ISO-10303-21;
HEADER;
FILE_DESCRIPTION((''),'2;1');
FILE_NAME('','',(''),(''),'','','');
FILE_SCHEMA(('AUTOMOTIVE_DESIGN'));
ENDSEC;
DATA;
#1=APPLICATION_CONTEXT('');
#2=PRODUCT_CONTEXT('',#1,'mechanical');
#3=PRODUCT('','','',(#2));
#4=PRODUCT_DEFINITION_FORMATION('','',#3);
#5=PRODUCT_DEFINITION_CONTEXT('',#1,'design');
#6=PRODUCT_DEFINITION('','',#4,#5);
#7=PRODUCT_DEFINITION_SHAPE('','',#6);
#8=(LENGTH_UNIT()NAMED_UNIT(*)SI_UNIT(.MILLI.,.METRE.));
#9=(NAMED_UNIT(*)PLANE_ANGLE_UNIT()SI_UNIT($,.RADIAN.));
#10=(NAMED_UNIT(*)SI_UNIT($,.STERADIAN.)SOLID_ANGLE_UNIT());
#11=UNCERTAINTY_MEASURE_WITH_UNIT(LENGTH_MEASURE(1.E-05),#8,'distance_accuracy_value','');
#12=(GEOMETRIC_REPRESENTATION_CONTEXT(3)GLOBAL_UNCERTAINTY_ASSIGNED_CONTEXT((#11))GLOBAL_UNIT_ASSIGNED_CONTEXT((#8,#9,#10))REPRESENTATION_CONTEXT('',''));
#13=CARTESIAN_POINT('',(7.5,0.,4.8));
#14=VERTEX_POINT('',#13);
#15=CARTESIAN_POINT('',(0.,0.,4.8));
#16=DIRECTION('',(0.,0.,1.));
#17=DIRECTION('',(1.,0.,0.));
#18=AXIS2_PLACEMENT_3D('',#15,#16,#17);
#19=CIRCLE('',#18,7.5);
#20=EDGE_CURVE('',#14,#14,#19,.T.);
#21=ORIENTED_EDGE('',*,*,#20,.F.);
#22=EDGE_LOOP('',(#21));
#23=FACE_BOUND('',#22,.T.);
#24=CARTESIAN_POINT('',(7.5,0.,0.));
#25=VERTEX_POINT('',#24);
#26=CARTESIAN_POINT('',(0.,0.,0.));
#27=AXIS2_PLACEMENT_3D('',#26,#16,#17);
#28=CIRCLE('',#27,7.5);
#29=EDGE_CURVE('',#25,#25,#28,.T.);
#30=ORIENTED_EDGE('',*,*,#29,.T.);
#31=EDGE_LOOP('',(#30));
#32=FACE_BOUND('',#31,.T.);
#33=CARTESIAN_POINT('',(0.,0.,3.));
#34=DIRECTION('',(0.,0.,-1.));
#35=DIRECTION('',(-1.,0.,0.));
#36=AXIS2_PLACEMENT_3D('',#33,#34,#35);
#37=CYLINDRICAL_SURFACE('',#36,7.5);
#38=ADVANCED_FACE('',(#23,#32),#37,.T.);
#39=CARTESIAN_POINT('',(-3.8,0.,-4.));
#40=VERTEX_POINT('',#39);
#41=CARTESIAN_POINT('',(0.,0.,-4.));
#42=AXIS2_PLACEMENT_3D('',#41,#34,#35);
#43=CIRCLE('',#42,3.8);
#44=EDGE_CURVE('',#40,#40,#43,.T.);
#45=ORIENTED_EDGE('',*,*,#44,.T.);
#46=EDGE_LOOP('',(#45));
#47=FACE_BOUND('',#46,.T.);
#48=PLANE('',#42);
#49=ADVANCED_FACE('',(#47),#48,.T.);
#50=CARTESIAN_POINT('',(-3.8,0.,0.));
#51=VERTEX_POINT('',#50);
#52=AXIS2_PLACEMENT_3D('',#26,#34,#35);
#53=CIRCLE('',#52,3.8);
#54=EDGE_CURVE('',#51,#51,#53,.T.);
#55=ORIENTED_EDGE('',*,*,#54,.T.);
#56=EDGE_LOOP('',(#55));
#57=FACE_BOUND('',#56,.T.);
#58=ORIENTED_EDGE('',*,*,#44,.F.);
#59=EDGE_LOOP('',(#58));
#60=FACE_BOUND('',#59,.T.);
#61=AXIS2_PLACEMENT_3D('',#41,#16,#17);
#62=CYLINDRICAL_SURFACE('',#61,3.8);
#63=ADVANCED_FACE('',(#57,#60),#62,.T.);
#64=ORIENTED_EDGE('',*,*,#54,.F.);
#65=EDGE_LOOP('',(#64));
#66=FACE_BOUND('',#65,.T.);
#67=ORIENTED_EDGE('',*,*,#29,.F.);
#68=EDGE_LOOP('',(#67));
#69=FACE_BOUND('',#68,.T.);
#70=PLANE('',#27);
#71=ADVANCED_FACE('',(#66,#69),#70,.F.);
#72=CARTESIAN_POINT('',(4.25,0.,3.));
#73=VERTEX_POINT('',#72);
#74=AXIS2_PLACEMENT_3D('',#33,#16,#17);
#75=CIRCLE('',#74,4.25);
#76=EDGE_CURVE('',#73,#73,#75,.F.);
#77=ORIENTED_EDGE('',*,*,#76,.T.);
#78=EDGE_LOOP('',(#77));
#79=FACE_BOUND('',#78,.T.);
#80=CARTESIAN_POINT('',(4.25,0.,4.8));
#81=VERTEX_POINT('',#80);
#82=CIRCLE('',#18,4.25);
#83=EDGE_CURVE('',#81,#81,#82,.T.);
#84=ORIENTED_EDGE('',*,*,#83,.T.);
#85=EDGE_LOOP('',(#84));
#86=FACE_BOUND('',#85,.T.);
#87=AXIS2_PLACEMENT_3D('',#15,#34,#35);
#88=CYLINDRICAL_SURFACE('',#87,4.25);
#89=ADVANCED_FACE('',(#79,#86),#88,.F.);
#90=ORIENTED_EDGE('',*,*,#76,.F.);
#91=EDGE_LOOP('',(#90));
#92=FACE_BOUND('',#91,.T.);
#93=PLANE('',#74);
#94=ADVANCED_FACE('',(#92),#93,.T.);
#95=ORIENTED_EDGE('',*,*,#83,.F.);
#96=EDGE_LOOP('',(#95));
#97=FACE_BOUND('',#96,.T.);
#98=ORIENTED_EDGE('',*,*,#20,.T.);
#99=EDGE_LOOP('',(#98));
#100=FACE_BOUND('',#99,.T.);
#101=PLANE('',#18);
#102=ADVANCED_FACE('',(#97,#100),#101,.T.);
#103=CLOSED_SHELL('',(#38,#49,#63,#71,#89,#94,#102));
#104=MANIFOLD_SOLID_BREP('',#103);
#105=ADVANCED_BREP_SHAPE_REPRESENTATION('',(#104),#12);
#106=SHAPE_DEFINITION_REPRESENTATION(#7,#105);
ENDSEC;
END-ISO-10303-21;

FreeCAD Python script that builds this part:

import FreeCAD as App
import Part
import Sketcher

V = App.Vector
Q = App.Units.Quantity

doc = App.newDocument("Part")
body = doc.addObject("PartDesign::Body", "Body")

# Sketch on XY plane
sketch1 = body.newObject("Sketcher::SketchObject", "Sketch")
sketch1.AttachmentSupport = (doc.getObject("XY_Plane"), [""])
sketch1.MapMode = "FlatFace"
sketch1.addGeometry(Part.Circle(V(0, 0, 0), V(0, 0, 1), 8), False)
sketch1.addConstraint([
    Sketcher.Constraint("Coincident", 0, 3, -1, 1),
    Sketcher.Constraint("Diameter", 0, Q("15 mm")),
])
pad1 = body.newObject("PartDesign::Pad", "Pad")
pad1.Profile = sketch1
pad1.Length = 3

# Sketch on XY plane
sketch2 = body.newObject("Sketcher::SketchObject", "Sketch001")
sketch2.AttachmentSupport = (doc.getObject("XY_Plane"), [""])
sketch2.MapMode = "FlatFace"
sketch2.addGeometry(Part.Circle(V(0, 0, 0), V(0, 0, 1), 3.8), False)
sketch2.addConstraint([
    Sketcher.Constraint("Coincident", 0, 3, -1, 1),
    Sketcher.Constraint("Diameter", 0, Q("7.6 mm")),
])
pad2 = body.newObject("PartDesign::Pad", "Pad001")
pad2.Profile = sketch2
pad2.Length = 4
pad2.Reversed = True

# Sketch on XY plane
sketch3 = body.newObject("Sketcher::SketchObject", "Sketch002")
sketch3.AttachmentSupport = (doc.getObject("XY_Plane"), [""])
sketch3.MapMode = "FlatFace"
sketch3.AttachmentOffset = App.Placement(V(0, 0, 3), App.Rotation())
sketch3.addGeometry([
    Part.Circle(V(0, 0, 0), V(0, 0, 1), 7.5),
    Part.Circle(V(0, 0, 0), V(0, 0, 1), 4.2),
], False)
sketch3.addConstraint([
    Sketcher.Constraint("Coincident", 0, 3, -1, 1),
    Sketcher.Constraint("Coincident", 1, 3, -1, 1),
    Sketcher.Constraint("Diameter", 0, Q("15 mm")),
    Sketcher.Constraint("Diameter", 1, Q("8.5 mm")),
])
pad3 = body.newObject("PartDesign::Pad", "Pad002")
pad3.Profile = sketch3
pad3.Length = 1.8

doc.recompute()
